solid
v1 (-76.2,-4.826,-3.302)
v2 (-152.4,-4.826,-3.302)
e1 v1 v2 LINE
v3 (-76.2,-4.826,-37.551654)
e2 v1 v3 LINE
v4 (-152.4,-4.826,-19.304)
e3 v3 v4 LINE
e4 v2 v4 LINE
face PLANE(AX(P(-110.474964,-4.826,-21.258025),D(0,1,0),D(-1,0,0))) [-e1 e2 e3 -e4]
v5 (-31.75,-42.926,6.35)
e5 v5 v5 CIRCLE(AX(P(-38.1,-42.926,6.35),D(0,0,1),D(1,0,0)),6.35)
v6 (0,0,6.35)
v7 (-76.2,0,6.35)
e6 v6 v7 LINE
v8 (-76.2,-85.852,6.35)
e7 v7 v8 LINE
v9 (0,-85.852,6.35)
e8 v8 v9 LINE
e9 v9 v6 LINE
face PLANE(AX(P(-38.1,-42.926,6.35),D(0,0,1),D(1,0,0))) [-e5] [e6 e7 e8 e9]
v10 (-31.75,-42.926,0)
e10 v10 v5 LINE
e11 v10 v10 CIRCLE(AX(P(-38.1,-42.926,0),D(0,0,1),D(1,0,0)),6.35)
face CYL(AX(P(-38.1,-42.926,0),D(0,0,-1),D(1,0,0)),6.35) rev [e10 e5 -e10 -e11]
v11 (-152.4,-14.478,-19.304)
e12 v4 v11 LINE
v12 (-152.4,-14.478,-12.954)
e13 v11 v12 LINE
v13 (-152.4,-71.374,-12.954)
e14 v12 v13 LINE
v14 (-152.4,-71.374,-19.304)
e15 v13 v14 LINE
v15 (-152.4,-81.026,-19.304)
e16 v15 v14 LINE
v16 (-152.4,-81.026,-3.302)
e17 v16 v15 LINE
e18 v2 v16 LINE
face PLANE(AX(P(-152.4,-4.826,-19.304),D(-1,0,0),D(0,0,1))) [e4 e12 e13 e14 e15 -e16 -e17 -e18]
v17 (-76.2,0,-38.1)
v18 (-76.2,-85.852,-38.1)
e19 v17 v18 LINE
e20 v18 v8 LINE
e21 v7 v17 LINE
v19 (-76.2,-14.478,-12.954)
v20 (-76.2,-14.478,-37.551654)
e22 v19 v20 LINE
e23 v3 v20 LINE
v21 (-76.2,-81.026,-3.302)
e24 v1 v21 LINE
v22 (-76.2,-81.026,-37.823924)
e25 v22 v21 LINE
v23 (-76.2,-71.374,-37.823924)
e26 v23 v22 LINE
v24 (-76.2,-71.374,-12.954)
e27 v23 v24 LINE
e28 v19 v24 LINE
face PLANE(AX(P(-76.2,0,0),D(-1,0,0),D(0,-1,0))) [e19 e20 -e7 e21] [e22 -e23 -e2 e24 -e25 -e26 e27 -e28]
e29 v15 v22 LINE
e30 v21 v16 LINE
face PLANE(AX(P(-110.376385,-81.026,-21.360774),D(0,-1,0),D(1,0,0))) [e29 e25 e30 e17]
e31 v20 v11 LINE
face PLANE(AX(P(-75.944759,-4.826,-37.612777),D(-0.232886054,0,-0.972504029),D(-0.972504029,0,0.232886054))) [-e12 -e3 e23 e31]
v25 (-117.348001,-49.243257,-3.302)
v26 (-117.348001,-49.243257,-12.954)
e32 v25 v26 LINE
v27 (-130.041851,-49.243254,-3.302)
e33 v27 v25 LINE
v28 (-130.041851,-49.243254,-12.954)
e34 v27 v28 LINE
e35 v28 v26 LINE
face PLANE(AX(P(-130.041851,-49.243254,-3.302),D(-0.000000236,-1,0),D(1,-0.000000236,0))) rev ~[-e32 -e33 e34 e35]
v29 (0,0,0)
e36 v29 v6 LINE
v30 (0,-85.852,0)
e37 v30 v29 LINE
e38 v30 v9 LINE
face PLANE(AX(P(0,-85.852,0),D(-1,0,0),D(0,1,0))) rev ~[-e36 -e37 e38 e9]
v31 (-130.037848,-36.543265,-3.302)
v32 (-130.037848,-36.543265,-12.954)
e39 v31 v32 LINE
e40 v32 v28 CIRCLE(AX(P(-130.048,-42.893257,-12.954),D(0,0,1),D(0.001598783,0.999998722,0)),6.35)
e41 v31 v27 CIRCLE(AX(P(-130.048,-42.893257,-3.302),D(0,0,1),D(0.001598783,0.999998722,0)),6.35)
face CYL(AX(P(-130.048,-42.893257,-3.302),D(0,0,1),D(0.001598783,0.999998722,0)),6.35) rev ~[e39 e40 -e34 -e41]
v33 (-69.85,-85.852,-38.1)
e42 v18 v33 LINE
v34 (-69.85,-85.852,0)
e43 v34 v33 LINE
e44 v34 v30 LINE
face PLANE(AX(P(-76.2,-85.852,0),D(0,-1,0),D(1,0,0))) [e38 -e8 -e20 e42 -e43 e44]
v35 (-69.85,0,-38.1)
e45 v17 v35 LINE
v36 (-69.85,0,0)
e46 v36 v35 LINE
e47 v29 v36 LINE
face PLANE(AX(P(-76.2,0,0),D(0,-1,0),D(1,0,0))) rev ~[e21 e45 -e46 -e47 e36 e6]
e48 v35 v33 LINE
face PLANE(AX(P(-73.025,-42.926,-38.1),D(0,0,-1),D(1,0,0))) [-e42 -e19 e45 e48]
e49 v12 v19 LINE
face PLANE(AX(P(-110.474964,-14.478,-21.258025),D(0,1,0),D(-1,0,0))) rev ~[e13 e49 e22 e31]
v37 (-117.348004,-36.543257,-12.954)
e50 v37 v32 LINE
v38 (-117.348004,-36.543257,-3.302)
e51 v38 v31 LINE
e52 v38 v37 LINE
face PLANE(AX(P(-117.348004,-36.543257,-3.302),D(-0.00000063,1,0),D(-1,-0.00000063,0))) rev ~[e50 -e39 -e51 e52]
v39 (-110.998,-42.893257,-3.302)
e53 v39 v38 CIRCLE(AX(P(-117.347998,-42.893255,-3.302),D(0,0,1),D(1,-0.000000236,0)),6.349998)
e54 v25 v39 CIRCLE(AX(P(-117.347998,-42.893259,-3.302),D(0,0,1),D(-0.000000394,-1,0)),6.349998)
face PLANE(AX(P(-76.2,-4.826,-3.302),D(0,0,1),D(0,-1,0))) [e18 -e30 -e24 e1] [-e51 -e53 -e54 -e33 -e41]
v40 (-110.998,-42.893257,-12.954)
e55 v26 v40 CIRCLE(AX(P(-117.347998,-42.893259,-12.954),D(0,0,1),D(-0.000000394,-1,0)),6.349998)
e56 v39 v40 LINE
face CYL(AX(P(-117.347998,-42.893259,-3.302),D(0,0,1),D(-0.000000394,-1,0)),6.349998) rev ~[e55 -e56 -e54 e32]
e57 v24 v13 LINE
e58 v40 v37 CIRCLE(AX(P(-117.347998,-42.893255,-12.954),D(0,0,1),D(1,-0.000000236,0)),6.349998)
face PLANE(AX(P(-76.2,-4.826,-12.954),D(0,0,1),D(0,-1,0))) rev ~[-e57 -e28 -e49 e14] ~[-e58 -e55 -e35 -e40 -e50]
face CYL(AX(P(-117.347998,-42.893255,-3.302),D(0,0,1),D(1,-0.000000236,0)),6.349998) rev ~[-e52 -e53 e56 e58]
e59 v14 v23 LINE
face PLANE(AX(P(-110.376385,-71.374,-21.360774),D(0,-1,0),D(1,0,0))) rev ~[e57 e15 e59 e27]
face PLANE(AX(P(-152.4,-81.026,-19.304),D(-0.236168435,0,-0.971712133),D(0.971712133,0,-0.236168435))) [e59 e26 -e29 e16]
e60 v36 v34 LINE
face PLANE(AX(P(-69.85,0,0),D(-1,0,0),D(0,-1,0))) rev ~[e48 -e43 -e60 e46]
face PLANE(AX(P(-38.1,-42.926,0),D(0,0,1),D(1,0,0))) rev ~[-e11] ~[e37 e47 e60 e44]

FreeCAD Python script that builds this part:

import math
import FreeCAD as App
import Part
import Sketcher

V = App.Vector
Q = App.Units.Quantity

doc = App.newDocument("Part")
body = doc.addObject("PartDesign::Body", "Body")

# Sketch on XY plane
sketch1 = body.newObject("Sketcher::SketchObject", "Sketch")
sketch1.AttachmentSupport = (doc.getObject("XY_Plane"), [""])
sketch1.MapMode = "FlatFace"
sketch1.addGeometry([
    Part.LineSegment(V(0, -85.852, 0), V(0, 0, 0)),  # 0
    Part.LineSegment(V(0, 0, 0), V(-76.2, 0, 0)),  # 1
    Part.LineSegment(V(-76.2, 0, 0), V(-76.2, -85.852, 0)),  # 2
    Part.LineSegment(V(-76.2, -85.852, 0), V(0, -85.852, 0)),  # 3
    Part.Circle(V(-38.1, -42.926, 0), V(0, 0, 1), 6.35),  # 4
], False)
sketch1.addConstraint([
    Sketcher.Constraint("Coincident", 0, 2, 1, 1),
    Sketcher.Constraint("Coincident", 1, 2, 2, 1),
    Sketcher.Constraint("Coincident", 2, 2, 3, 1),
    Sketcher.Constraint("Coincident", 3, 2, 0, 1),
    Sketcher.Constraint("Vertical", 0),
    Sketcher.Constraint("Horizontal", 1),
    Sketcher.Constraint("Vertical", 2),
    Sketcher.Constraint("Horizontal", 3),
    Sketcher.Constraint("Coincident", 0, 2, -1, 1),
    Sketcher.Constraint("Diameter", 4, Q("0.5 in")),
    Sketcher.Constraint("DistanceX", 1, 2, 1, 1, Q("3 in")),
    Sketcher.Constraint("DistanceY", 0, 1, 0, 2, Q("3.38 in")),
    Sketcher.Constraint("DistanceX", 4, 3, -1, 1, Q("1.5 in")),
    Sketcher.Constraint("DistanceY", 4, 3, -1, 1, Q("1.69 in")),
])
pad1 = body.newObject("PartDesign::Pad", "Pad")
pad1.Profile = sketch1
pad1.Length = Q("0.25 in")

# Sketch on XY plane
sketch2 = body.newObject("Sketcher::SketchObject", "Sketch001")
sketch2.AttachmentSupport = (doc.getObject("XY_Plane"), [""])
sketch2.MapMode = "FlatFace"
sketch2.addGeometry([
    Part.LineSegment(V(-76.2, -85.852, 0), V(-76.2, 0, 0)),
    Part.LineSegment(V(-76.2, 0, 0), V(-69.85, 0, 0)),
    Part.LineSegment(V(-69.85, 0, 0), V(-69.85, -85.852, 0)),
    Part.LineSegment(V(-69.85, -85.852, 0), V(-76.2, -85.852, 0)),
], False)
sketch2.addConstraint([
    Sketcher.Constraint("Coincident", 0, 2, 1, 1),
    Sketcher.Constraint("Coincident", 1, 2, 2, 1),
    Sketcher.Constraint("Coincident", 2, 2, 3, 1),
    Sketcher.Constraint("Coincident", 3, 2, 0, 1),
    Sketcher.Constraint("Vertical", 0),
    Sketcher.Constraint("Horizontal", 1),
    Sketcher.Constraint("Vertical", 2),
    Sketcher.Constraint("Horizontal", 3),
    Sketcher.Constraint("PointOnObject", 0, 2, -1),
    Sketcher.Constraint("DistanceX", 0, 2, -1, 1, Q("3 in")),
    Sketcher.Constraint("DistanceX", 1, 1, 1, 2, Q("0.25 in")),
    Sketcher.Constraint("DistanceY", 0, 1, 0, 2, Q("3.38 in")),
])
pad2 = body.newObject("PartDesign::Pad", "Pad001")
pad2.Profile = sketch2
pad2.Length = Q("1.5 in")
pad2.Reversed = True

# Sketch on YZ plane
sketch3 = body.newObject("Sketcher::SketchObject", "Sketch002")
sketch3.AttachmentSupport = (doc.getObject("YZ_Plane"), [""])
sketch3.MapMode = "FlatFace"
sketch3.AttachmentOffset = App.Placement(V(0, 0, -3 * 25.4), App.Rotation())
sketch3.addGeometry([
    Part.LineSegment(V(-4.826, -3.302, 0), V(-4.826, -12.954, 0)),
    Part.LineSegment(V(-4.826, -12.954, 0), V(-81.026, -12.954, 0)),
    Part.LineSegment(V(-81.026, -12.954, 0), V(-81.026, -3.302, 0)),
    Part.LineSegment(V(-81.026, -3.302, 0), V(-4.826, -3.302, 0)),
], False)
sketch3.addConstraint([
    Sketcher.Constraint("Coincident", 0, 2, 1, 1),
    Sketcher.Constraint("Coincident", 1, 2, 2, 1),
    Sketcher.Constraint("Coincident", 2, 2, 3, 1),
    Sketcher.Constraint("Coincident", 3, 2, 0, 1),
    Sketcher.Constraint("Vertical", 0),
    Sketcher.Constraint("Horizontal", 1),
    Sketcher.Constraint("Vertical", 2),
    Sketcher.Constraint("Horizontal", 3),
    Sketcher.Constraint("DistanceX", 1, 2, 1, 1, Q("3 in")),
    Sketcher.Constraint("DistanceY", 0, 2, 0, 1, Q("0.38 in")),
    Sketcher.Constraint("DistanceX", 0, 2, -1, 1, Q("0.19 in")),
    Sketcher.Constraint("DistanceY", 0, 2, -1, 1, Q("0.51 in")),
])
pad3 = body.newObject("PartDesign::Pad", "Pad002")
pad3.Profile = sketch3
pad3.Length = Q("3 in")
pad3.Reversed = True

# Sketch on XY plane
sketch4 = body.newObject("Sketcher::SketchObject", "Sketch003")
sketch4.AttachmentSupport = (doc.getObject("XY_Plane"), [""])
sketch4.MapMode = "FlatFace"
sketch4.AttachmentOffset = App.Placement(V(0, 0, -0.13 * 25.4), App.Rotation())
sketch4.addGeometry([
    Part.ArcOfCircle(Part.Circle(V(-117.347999, -42.893259, 0), V(0, 0, 1), 6.349998), math.radians(-90.000023), math.radians(0.000014)),  # 0
    Part.ArcOfCircle(Part.Circle(V(-117.347999, -42.893256, 0), V(0, 0, 1), 6.349998), math.radians(-0.000014), math.radians(90.00005)),  # 1
    Part.LineSegment(V(-117.348004, -36.543257, 0), V(-130.037848, -36.543265, 0)),  # 2
    Part.ArcOfCircle(Part.Circle(V(-130.048, -42.893257, 0), V(0, 0, 1), 6.35), math.radians(89.908396), math.radians(270.055485)),  # 3
    Part.LineSegment(V(-130.041851, -49.243254, 0), V(-117.348001, -49.243257, 0)),  # 4
], False)
sketch4.addConstraint([
    Sketcher.Constraint("Tangent", 0, 2, 1, 1),
    Sketcher.Constraint("Tangent", 1, 2, 2, 1),
    Sketcher.Constraint("Coincident", 2, 2, 3, 1),
    Sketcher.Constraint("Coincident", 3, 2, 4, 1),
    Sketcher.Constraint("Tangent", 4, 2, 0, 1),
    Sketcher.Constraint("Equal", 0, 1),
    Sketcher.Constraint("Equal", 1, 3),
    Sketcher.Constraint("Horizontal", 1, 3, 3, 3),
    Sketcher.Constraint("Horizontal", 3, 3, 0, 2),
    Sketcher.Constraint("Radius", 0, Q("0.2499999 in")),
    Sketcher.Constraint("DistanceX", 3, 3, 1, 3, Q("0.5000001 in")),
    Sketcher.Constraint("DistanceX", 0, 3, -1, 1, Q("4.6199999 in")),
    Sketcher.Constraint("Distance", 2, Q("0.4996002 in")),
    Sketcher.Constraint("Distance", 4, 12.69385),
    Sketcher.Constraint("DistanceY", 0, 3, -1, 1, 42.893259),
])
pocket1 = body.newObject("PartDesign::Pocket", "Pocket")
pocket1.Profile = sketch4
pocket1.Length = Q("0.4 in")

# Sketch on XZ plane
sketch5 = body.newObject("Sketcher::SketchObject", "Sketch004")
sketch5.AttachmentSupport = (doc.getObject("XZ_Plane"), [""])
sketch5.MapMode = "FlatFace"
sketch5.AttachmentOffset = App.Placement(V(0, 0, 3.19 * 25.4), App.Rotation())
sketch5.addGeometry([
    Part.LineSegment(V(-76.2, -12.954, 0), V(-152.4, -12.954, 0)),
    Part.LineSegment(V(-152.4, -12.954, 0), V(-152.4, -19.304, 0)),
    Part.LineSegment(V(-152.4, -19.304, 0), V(-75.782955, -37.925284, 0)),
    Part.LineSegment(V(-75.782955, -37.925284, 0), V(-76.2, -12.954, 0)),
], False)
sketch5.addConstraint([
    Sketcher.Constraint("Coincident", 0, 2, 1, 1),
    Sketcher.Constraint("Coincident", 1, 2, 2, 1),
    Sketcher.Constraint("Coincident", 2, 2, 3, 1),
    Sketcher.Constraint("Coincident", 3, 2, 0, 1),
    Sketcher.Constraint("Horizontal", 0),
    Sketcher.Constraint("Vertical", 1),
    Sketcher.Constraint("DistanceX", 0, 2, 0, 1, Q("3 in")),
    Sketcher.Constraint("DistanceX", 0, 2, -1, 1, Q("6 in")),
    Sketcher.Constraint("DistanceY", 1, 2, 1, 1, Q("0.25 in")),
    Sketcher.Constraint("DistanceY", 0, 2, -1, 1, Q("0.51 in")),
    Sketcher.Constraint("Distance", 2, 78.847472),
    Sketcher.Constraint("Distance", 3, 24.974766),
])
pad4 = body.newObject("PartDesign::Pad", "Pad003")
pad4.Profile = sketch5
pad4.Length = Q("0.38 in")
pad4.Reversed = True

# Sketch on XZ plane
sketch6 = body.newObject("Sketcher::SketchObject", "Sketch005")
sketch6.AttachmentSupport = (doc.getObject("XZ_Plane"), [""])
sketch6.MapMode = "FlatFace"
sketch6.AttachmentOffset = App.Placement(V(0, 0, 0.19 * 25.4), App.Rotation())
sketch6.addGeometry([
    Part.LineSegment(V(-152.4, -19.304, 0), V(-152.4, -12.954, 0)),
    Part.LineSegment(V(-152.4, -12.954, 0), V(-76.2, -12.954, 0)),
    Part.LineSegment(V(-76.2, -12.954, 0), V(-75.944759, -37.612777, 0)),
    Part.LineSegment(V(-75.944759, -37.612777, 0), V(-152.4, -19.304, 0)),
], False)
sketch6.addConstraint([
    Sketcher.Constraint("Coincident", 0, 2, 1, 1),
    Sketcher.Constraint("Coincident", 1, 2, 2, 1),
    Sketcher.Constraint("Coincident", 2, 2, 3, 1),
    Sketcher.Constraint("Coincident", 3, 2, 0, 1),
    Sketcher.Constraint("Vertical", 0),
    Sketcher.Constraint("Horizontal", 1),
    Sketcher.Constraint("DistanceX", 1, 1, 1, 2, Q("3 in")),
    Sketcher.Constraint("DistanceX", 0, 2, -1, 1, Q("6 in")),
    Sketcher.Constraint("DistanceY", 0, 1, 0, 2, Q("0.25 in")),
    Sketcher.Constraint("DistanceY", 0, 2, -1, 1, Q("0.51 in")),
    Sketcher.Constraint("Distance", 3, 78.616889),
    Sketcher.Constraint("DistanceX", 2, 2, -1, 1, 75.944759),
])
pad5 = body.newObject("PartDesign::Pad", "Pad004")
pad5.Profile = sketch6
pad5.Length = Q("0.38 in")

doc.recompute()
